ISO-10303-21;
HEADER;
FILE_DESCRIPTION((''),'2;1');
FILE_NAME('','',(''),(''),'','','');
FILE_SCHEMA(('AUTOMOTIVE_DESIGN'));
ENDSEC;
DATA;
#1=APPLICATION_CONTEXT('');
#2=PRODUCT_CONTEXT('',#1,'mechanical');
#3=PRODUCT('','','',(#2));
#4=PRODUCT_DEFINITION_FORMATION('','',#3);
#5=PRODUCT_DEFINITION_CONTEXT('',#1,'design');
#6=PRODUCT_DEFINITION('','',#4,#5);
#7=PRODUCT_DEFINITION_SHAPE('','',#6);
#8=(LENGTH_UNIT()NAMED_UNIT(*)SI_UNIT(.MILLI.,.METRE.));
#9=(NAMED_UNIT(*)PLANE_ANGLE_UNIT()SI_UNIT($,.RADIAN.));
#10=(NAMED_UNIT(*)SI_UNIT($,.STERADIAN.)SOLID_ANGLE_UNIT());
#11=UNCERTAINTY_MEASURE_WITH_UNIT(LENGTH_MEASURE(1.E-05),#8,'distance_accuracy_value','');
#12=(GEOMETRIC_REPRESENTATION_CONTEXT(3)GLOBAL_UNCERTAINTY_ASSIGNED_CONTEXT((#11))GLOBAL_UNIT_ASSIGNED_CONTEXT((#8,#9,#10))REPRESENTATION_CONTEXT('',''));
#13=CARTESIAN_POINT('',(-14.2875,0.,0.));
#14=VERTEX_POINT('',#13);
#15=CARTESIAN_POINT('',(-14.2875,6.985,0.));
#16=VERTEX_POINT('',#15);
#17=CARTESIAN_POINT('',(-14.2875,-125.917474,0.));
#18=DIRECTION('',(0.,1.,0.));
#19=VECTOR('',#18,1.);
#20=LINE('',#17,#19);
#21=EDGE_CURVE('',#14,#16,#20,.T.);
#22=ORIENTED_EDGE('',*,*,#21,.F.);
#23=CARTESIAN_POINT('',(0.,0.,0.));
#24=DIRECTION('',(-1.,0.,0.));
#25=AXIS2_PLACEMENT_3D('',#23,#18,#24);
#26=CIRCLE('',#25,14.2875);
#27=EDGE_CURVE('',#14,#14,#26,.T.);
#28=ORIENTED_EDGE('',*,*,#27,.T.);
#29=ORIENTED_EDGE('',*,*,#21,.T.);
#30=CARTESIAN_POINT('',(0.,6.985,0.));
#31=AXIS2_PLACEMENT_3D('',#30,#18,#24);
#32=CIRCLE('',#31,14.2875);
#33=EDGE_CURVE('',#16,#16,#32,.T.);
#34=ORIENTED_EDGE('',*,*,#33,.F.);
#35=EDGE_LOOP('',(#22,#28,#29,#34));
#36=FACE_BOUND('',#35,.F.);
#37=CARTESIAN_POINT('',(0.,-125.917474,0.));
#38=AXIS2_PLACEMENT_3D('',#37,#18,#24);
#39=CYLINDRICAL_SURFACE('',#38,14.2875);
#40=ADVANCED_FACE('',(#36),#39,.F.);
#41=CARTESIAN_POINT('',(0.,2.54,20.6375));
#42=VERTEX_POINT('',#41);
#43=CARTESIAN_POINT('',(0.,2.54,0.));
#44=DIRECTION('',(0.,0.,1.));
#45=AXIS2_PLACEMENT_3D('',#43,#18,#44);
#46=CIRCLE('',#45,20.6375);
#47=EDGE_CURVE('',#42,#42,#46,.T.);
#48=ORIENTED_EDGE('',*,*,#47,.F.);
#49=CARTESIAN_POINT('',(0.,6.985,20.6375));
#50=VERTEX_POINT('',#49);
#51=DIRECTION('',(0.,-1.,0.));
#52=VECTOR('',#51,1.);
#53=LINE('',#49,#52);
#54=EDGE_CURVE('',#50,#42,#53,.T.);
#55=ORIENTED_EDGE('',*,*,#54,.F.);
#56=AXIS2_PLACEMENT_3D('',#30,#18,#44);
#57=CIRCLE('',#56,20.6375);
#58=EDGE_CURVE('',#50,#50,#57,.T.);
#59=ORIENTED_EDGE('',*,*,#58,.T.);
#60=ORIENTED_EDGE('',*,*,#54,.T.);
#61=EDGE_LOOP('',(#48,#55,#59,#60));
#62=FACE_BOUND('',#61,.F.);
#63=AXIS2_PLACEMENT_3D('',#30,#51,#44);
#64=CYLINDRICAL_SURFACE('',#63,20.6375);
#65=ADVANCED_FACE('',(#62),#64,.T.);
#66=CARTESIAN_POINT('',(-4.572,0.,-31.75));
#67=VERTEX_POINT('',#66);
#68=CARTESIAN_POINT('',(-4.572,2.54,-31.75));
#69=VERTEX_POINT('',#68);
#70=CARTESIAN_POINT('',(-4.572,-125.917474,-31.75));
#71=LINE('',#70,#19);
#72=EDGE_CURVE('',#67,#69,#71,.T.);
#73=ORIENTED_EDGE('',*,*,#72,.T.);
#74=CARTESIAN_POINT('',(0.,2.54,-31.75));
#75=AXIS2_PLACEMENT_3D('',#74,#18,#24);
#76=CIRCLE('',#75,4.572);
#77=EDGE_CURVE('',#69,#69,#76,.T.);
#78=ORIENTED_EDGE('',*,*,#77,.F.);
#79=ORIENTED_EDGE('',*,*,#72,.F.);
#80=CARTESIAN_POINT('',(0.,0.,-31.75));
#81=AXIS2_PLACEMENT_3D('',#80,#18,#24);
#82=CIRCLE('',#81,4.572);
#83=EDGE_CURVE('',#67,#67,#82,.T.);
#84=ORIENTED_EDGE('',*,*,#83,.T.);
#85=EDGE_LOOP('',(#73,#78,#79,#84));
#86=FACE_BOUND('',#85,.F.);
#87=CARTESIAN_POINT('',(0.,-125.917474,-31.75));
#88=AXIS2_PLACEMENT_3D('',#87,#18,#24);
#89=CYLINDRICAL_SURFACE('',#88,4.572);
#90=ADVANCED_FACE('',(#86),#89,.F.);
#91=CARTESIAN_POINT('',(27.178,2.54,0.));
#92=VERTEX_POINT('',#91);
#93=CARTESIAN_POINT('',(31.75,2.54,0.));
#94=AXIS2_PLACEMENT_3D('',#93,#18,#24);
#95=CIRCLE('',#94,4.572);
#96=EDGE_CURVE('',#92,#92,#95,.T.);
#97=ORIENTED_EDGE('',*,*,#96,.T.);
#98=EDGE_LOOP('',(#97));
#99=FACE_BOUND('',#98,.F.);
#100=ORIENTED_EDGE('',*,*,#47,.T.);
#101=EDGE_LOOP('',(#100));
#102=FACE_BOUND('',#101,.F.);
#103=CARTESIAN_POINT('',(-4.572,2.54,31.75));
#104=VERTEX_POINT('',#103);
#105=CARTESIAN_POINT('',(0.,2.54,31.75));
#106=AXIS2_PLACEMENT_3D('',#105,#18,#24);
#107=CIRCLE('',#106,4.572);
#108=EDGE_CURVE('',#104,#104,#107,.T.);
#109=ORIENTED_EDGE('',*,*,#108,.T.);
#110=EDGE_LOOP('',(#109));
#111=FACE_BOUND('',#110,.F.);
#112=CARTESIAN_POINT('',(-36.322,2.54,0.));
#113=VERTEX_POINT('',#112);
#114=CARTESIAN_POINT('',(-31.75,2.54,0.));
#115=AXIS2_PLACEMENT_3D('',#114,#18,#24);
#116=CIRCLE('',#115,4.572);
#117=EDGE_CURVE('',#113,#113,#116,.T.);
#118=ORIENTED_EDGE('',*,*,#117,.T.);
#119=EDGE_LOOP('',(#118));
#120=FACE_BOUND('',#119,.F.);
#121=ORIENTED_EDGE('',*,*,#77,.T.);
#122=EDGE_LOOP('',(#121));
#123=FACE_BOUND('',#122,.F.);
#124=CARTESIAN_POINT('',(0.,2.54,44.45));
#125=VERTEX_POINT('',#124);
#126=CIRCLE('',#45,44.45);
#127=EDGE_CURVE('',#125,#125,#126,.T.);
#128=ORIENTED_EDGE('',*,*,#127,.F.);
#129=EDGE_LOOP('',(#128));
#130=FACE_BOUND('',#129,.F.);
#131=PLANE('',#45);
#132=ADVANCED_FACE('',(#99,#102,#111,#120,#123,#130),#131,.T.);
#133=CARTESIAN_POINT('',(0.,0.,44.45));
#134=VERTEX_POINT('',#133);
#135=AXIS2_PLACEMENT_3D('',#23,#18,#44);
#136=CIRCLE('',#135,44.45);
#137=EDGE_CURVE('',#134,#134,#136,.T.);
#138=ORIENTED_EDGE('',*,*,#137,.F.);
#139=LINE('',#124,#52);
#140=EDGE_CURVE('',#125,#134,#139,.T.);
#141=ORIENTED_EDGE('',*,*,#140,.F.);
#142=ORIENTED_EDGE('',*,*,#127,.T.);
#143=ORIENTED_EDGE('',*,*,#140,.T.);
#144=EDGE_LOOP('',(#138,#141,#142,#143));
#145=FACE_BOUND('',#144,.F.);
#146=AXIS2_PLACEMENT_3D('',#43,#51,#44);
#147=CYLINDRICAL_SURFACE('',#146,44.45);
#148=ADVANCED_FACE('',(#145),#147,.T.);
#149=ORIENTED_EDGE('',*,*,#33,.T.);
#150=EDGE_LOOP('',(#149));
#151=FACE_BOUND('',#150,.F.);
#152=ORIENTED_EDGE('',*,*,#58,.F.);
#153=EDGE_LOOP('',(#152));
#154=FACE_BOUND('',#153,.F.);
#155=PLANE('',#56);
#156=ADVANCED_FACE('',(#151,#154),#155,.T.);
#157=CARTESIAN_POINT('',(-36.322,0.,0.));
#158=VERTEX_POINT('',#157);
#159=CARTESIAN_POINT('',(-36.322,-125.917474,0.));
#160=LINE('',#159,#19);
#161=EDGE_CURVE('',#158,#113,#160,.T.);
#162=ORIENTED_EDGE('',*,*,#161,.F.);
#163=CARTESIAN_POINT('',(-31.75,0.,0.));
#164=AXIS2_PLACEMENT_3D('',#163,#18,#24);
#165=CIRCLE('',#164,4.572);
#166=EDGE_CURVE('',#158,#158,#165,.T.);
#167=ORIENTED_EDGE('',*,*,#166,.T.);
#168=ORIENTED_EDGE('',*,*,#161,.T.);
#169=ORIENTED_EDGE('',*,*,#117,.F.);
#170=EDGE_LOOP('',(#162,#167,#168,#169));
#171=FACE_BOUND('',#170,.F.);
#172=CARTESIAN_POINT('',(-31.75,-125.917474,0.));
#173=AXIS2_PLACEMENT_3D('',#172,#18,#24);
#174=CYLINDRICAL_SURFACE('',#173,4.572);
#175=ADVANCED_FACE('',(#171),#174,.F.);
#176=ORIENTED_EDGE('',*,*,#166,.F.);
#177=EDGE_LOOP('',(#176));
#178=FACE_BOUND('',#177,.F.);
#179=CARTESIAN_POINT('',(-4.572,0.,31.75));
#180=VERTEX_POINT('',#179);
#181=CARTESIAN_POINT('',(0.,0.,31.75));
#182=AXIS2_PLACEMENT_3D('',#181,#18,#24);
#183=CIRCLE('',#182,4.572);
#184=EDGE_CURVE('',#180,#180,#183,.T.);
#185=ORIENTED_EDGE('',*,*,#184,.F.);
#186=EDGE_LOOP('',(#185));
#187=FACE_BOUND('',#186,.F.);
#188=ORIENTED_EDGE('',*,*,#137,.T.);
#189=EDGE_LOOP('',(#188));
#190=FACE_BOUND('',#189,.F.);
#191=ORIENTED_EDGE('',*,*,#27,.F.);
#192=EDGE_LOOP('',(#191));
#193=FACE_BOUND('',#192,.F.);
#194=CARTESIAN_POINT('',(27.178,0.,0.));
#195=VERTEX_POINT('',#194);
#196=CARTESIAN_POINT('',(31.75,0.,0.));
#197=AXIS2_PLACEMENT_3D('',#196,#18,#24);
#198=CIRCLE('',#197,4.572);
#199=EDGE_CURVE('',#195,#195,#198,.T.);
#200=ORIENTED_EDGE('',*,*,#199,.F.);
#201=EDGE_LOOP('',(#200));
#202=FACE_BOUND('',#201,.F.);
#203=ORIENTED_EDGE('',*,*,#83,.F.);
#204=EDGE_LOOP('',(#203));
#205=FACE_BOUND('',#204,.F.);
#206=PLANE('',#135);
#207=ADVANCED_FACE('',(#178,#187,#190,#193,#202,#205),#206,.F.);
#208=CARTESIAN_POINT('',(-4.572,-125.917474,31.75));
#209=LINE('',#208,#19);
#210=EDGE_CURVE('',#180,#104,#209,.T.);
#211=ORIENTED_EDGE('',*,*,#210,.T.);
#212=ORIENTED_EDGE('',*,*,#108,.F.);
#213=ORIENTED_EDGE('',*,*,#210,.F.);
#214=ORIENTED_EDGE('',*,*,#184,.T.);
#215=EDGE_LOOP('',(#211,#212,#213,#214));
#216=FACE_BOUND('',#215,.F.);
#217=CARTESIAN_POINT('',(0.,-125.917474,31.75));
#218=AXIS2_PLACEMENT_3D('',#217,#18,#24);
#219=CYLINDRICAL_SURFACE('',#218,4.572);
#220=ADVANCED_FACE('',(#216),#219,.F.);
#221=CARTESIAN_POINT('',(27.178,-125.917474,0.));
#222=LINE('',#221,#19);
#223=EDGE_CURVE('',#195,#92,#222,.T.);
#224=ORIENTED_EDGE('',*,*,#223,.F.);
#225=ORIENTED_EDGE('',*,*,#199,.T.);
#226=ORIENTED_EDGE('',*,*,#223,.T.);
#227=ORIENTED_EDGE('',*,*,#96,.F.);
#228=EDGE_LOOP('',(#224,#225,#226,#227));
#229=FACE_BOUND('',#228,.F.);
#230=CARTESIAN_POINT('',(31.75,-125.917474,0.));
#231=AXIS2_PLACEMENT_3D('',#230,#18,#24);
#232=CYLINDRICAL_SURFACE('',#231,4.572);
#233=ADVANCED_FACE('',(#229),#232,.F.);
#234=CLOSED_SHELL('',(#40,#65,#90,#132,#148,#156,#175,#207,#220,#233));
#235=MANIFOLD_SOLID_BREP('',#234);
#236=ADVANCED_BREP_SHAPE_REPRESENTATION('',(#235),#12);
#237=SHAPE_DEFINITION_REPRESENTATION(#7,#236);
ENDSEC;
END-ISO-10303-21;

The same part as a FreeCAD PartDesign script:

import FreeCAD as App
import Part
import Sketcher

V = App.Vector
Q = App.Units.Quantity

doc = App.newDocument("Part")
body = doc.addObject("PartDesign::Body", "Body")

sketch1 = doc.addObject("Sketcher::SketchObject", "Sketch")
body.addObject(sketch1)
sketch1.AttachmentSupport = (doc.YZ_Plane, [""])
sketch1.MapMode = "FlatFace"
sketch1.addGeometry([
    Part.LineSegment(V(0, 44.5, 0), V(0, 0, 0)),
    Part.LineSegment(V(0, 0, 0), V(7, 0, 0)),
    Part.LineSegment(V(7, 0, 0), V(7, 20.6, 0)),
    Part.LineSegment(V(7, 20.6, 0), V(2.5, 20.6, 0)),
    Part.LineSegment(V(2.5, 20.6, 0), V(2.5, 44.5, 0)),
    Part.LineSegment(V(2.5, 44.5, 0), V(0, 44.5, 0)),
], False)
sketch1.addConstraint([
    Sketcher.Constraint("Coincident", 0, 2, 1, 1),
    Sketcher.Constraint("Coincident", 1, 2, 2, 1),
    Sketcher.Constraint("Coincident", 2, 2, 3, 1),
    Sketcher.Constraint("Coincident", 3, 2, 4, 1),
    Sketcher.Constraint("Coincident", 4, 2, 5, 1),
    Sketcher.Constraint("Coincident", 5, 2, 0, 1),
    Sketcher.Constraint("Vertical", 0),
    Sketcher.Constraint("Horizontal", 1),
    Sketcher.Constraint("Vertical", 2),
    Sketcher.Constraint("Horizontal", 3),
    Sketcher.Constraint("Vertical", 4),
    Sketcher.Constraint("Horizontal", 5),
    Sketcher.Constraint("Coincident", 0, 2, -1, 1),
    Sketcher.Constraint("DistanceX", 5, 2, 5, 1, Q("0.1 in")),
    Sketcher.Constraint("DistanceY", 0, 2, 0, 1, Q("1.75 in")),
    Sketcher.Constraint("DistanceX", 1, 1, 1, 2, Q("0.275 in")),
    Sketcher.Constraint("DistanceY", 2, 1, 2, 2, Q("0.8125 in")),
])
revolution = doc.addObject("PartDesign::Revolution", "Revolution")
body.addObject(revolution)
revolution.Profile = sketch1
revolution.ReferenceAxis = (sketch1, ["H_Axis"])
revolution.Angle = 360

sketch2 = doc.addObject("Sketcher::SketchObject", "Sketch001")
body.addObject(sketch2)
sketch2.AttachmentSupport = (doc.XZ_Plane, [""])
sketch2.MapMode = "FlatFace"
sketch2.addGeometry(Part.Circle(V(0, 0, 0), V(0, 0, 1), 14), False)
sketch2.addConstraint([
    Sketcher.Constraint("Coincident", 0, 3, -1, 1),
    Sketcher.Constraint("Diameter", 0, Q("1.125 in")),
])
doc.recompute()
hole = doc.addObject("PartDesign::Hole", "Hole")
body.addObject(hole)
hole.Profile = sketch2
hole.ThreadType = "None"
hole.Diameter = Q("1.125 in")
hole.DepthType = "ThroughAll"

sketch3 = doc.addObject("Sketcher::SketchObject", "Sketch002")
body.addObject(sketch3)
sketch3.AttachmentSupport = (doc.XZ_Plane, [""])
sketch3.MapMode = "FlatFace"
sketch3.addGeometry([
    Part.Circle(V(0, 31.8, 0), V(0, 0, 1), 4.6),
    Part.Circle(V(31.8, 0, 0), V(0, 0, 1), 4.6),
    Part.Circle(V(0, -31.8, 0), V(0, 0, 1), 4.6),
    Part.Circle(V(-31.8, 0, 0), V(0, 0, 1), 4.6),
], False)
sketch3.addConstraint([
    Sketcher.Constraint("Equal", 0, 1),
    Sketcher.Constraint("Equal", 1, 2),
    Sketcher.Constraint("Equal", 2, 3),
    Sketcher.Constraint("Symmetric", 0, 3, 2, 3, -1, 1),
    Sketcher.Constraint("Symmetric", 1, 3, 3, 3, -1, 1),
    Sketcher.Constraint("PointOnObject", 0, 3, -2),
    Sketcher.Constraint("PointOnObject", 1, 3, -1),
    Sketcher.Constraint("Diameter", 0, Q("0.36 in")),
    Sketcher.Constraint("DistanceY", 2, 3, 0, 3, Q("2.5 in")),
    Sketcher.Constraint("DistanceX", 3, 3, 1, 3, Q("2.5 in")),
])
doc.recompute()
hole2 = doc.addObject("PartDesign::Hole", "Hole001")
body.addObject(hole2)
hole2.Profile = sketch3
hole2.ThreadType = "None"
hole2.Diameter = Q("0.36 in")
hole2.DepthType = "ThroughAll"

doc.recompute()
